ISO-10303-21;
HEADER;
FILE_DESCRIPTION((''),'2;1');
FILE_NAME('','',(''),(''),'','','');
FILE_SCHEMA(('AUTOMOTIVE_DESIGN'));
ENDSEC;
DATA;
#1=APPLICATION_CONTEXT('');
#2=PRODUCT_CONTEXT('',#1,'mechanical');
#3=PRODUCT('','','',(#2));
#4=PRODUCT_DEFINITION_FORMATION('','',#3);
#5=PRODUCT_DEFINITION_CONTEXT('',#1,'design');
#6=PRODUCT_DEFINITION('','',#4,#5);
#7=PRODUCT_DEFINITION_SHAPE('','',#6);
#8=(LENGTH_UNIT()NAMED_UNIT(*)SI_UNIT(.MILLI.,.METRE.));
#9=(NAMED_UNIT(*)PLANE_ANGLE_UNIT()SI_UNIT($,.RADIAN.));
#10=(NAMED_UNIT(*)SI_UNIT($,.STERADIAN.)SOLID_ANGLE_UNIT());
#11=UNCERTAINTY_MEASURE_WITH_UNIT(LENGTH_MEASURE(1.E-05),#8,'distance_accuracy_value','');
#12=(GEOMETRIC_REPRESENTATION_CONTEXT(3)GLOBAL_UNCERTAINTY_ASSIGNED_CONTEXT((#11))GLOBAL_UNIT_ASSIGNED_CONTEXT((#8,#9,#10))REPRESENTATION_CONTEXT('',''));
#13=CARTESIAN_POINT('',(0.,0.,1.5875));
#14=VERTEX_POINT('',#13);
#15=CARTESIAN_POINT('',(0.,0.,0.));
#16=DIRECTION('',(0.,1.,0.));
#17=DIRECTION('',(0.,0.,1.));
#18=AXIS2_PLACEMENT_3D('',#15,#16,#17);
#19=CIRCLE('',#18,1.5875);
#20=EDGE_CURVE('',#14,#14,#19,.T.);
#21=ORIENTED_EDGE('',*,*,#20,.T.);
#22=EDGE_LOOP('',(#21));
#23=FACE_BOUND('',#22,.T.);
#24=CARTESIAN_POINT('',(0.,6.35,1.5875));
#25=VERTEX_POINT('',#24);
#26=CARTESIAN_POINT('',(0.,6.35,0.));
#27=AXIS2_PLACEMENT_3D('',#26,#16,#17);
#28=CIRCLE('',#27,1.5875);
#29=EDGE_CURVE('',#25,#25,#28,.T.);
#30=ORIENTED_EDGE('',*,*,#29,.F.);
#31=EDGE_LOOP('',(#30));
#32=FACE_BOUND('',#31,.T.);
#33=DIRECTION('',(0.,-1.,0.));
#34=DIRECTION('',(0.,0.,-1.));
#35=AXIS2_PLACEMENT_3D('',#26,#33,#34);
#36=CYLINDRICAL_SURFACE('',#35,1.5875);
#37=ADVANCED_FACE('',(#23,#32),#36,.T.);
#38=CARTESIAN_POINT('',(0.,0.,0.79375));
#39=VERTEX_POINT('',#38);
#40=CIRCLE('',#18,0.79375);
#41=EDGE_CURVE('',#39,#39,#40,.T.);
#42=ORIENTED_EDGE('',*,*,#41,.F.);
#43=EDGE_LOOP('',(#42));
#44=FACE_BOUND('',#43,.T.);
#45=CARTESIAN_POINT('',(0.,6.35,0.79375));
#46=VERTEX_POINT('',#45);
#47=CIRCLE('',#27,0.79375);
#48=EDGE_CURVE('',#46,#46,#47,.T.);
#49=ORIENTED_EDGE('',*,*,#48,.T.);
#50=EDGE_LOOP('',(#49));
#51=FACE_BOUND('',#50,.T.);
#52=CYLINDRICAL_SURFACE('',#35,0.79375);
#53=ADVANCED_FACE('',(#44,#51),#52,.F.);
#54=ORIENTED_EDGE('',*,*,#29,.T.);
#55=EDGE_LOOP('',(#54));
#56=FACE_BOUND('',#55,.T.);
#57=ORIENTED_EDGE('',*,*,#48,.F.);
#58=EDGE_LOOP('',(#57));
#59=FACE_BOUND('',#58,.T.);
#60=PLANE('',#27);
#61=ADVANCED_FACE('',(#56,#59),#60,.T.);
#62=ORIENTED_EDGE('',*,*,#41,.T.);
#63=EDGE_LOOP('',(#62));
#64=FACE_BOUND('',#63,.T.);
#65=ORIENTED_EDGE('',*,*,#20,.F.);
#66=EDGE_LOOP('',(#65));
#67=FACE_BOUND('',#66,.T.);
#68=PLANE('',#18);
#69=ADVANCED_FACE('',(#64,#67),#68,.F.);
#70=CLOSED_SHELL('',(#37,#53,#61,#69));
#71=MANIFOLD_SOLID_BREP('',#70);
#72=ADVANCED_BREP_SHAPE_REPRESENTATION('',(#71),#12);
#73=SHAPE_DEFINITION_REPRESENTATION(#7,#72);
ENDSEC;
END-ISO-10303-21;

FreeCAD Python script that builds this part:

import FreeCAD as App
import Part
import Sketcher
from FreeCAD import Vector
Q = App.Units.Quantity

doc = App.newDocument("Part")
body = doc.addObject("PartDesign::Body", "Body")

sketch1 = body.newObject("Sketcher::SketchObject", "Sketch")
sketch1.AttachmentSupport = (doc.getObject("XZ_Plane"), [""])
sketch1.MapMode = "FlatFace"
sketch1.addGeometry([
    Part.Circle(Vector(0, 0, 0), Vector(0, 0, 1), 1.6),
    Part.Circle(Vector(0, 0, 0), Vector(0, 0, 1), 0.8),
], False)
sketch1.addConstraint([
    Sketcher.Constraint("Coincident", 0, 3, -1, 1),
    Sketcher.Constraint("Coincident", 1, 3, -1, 1),
    Sketcher.Constraint("Diameter", 0, Q("0.125 in")),
    Sketcher.Constraint("Diameter", 1, Q("0.0625 in")),
])
pad1 = body.newObject("PartDesign::Pad", "Pad")
pad1.Profile = sketch1
pad1.Length = Q("0.25 in")
pad1.Reversed = True

doc.recompute()
